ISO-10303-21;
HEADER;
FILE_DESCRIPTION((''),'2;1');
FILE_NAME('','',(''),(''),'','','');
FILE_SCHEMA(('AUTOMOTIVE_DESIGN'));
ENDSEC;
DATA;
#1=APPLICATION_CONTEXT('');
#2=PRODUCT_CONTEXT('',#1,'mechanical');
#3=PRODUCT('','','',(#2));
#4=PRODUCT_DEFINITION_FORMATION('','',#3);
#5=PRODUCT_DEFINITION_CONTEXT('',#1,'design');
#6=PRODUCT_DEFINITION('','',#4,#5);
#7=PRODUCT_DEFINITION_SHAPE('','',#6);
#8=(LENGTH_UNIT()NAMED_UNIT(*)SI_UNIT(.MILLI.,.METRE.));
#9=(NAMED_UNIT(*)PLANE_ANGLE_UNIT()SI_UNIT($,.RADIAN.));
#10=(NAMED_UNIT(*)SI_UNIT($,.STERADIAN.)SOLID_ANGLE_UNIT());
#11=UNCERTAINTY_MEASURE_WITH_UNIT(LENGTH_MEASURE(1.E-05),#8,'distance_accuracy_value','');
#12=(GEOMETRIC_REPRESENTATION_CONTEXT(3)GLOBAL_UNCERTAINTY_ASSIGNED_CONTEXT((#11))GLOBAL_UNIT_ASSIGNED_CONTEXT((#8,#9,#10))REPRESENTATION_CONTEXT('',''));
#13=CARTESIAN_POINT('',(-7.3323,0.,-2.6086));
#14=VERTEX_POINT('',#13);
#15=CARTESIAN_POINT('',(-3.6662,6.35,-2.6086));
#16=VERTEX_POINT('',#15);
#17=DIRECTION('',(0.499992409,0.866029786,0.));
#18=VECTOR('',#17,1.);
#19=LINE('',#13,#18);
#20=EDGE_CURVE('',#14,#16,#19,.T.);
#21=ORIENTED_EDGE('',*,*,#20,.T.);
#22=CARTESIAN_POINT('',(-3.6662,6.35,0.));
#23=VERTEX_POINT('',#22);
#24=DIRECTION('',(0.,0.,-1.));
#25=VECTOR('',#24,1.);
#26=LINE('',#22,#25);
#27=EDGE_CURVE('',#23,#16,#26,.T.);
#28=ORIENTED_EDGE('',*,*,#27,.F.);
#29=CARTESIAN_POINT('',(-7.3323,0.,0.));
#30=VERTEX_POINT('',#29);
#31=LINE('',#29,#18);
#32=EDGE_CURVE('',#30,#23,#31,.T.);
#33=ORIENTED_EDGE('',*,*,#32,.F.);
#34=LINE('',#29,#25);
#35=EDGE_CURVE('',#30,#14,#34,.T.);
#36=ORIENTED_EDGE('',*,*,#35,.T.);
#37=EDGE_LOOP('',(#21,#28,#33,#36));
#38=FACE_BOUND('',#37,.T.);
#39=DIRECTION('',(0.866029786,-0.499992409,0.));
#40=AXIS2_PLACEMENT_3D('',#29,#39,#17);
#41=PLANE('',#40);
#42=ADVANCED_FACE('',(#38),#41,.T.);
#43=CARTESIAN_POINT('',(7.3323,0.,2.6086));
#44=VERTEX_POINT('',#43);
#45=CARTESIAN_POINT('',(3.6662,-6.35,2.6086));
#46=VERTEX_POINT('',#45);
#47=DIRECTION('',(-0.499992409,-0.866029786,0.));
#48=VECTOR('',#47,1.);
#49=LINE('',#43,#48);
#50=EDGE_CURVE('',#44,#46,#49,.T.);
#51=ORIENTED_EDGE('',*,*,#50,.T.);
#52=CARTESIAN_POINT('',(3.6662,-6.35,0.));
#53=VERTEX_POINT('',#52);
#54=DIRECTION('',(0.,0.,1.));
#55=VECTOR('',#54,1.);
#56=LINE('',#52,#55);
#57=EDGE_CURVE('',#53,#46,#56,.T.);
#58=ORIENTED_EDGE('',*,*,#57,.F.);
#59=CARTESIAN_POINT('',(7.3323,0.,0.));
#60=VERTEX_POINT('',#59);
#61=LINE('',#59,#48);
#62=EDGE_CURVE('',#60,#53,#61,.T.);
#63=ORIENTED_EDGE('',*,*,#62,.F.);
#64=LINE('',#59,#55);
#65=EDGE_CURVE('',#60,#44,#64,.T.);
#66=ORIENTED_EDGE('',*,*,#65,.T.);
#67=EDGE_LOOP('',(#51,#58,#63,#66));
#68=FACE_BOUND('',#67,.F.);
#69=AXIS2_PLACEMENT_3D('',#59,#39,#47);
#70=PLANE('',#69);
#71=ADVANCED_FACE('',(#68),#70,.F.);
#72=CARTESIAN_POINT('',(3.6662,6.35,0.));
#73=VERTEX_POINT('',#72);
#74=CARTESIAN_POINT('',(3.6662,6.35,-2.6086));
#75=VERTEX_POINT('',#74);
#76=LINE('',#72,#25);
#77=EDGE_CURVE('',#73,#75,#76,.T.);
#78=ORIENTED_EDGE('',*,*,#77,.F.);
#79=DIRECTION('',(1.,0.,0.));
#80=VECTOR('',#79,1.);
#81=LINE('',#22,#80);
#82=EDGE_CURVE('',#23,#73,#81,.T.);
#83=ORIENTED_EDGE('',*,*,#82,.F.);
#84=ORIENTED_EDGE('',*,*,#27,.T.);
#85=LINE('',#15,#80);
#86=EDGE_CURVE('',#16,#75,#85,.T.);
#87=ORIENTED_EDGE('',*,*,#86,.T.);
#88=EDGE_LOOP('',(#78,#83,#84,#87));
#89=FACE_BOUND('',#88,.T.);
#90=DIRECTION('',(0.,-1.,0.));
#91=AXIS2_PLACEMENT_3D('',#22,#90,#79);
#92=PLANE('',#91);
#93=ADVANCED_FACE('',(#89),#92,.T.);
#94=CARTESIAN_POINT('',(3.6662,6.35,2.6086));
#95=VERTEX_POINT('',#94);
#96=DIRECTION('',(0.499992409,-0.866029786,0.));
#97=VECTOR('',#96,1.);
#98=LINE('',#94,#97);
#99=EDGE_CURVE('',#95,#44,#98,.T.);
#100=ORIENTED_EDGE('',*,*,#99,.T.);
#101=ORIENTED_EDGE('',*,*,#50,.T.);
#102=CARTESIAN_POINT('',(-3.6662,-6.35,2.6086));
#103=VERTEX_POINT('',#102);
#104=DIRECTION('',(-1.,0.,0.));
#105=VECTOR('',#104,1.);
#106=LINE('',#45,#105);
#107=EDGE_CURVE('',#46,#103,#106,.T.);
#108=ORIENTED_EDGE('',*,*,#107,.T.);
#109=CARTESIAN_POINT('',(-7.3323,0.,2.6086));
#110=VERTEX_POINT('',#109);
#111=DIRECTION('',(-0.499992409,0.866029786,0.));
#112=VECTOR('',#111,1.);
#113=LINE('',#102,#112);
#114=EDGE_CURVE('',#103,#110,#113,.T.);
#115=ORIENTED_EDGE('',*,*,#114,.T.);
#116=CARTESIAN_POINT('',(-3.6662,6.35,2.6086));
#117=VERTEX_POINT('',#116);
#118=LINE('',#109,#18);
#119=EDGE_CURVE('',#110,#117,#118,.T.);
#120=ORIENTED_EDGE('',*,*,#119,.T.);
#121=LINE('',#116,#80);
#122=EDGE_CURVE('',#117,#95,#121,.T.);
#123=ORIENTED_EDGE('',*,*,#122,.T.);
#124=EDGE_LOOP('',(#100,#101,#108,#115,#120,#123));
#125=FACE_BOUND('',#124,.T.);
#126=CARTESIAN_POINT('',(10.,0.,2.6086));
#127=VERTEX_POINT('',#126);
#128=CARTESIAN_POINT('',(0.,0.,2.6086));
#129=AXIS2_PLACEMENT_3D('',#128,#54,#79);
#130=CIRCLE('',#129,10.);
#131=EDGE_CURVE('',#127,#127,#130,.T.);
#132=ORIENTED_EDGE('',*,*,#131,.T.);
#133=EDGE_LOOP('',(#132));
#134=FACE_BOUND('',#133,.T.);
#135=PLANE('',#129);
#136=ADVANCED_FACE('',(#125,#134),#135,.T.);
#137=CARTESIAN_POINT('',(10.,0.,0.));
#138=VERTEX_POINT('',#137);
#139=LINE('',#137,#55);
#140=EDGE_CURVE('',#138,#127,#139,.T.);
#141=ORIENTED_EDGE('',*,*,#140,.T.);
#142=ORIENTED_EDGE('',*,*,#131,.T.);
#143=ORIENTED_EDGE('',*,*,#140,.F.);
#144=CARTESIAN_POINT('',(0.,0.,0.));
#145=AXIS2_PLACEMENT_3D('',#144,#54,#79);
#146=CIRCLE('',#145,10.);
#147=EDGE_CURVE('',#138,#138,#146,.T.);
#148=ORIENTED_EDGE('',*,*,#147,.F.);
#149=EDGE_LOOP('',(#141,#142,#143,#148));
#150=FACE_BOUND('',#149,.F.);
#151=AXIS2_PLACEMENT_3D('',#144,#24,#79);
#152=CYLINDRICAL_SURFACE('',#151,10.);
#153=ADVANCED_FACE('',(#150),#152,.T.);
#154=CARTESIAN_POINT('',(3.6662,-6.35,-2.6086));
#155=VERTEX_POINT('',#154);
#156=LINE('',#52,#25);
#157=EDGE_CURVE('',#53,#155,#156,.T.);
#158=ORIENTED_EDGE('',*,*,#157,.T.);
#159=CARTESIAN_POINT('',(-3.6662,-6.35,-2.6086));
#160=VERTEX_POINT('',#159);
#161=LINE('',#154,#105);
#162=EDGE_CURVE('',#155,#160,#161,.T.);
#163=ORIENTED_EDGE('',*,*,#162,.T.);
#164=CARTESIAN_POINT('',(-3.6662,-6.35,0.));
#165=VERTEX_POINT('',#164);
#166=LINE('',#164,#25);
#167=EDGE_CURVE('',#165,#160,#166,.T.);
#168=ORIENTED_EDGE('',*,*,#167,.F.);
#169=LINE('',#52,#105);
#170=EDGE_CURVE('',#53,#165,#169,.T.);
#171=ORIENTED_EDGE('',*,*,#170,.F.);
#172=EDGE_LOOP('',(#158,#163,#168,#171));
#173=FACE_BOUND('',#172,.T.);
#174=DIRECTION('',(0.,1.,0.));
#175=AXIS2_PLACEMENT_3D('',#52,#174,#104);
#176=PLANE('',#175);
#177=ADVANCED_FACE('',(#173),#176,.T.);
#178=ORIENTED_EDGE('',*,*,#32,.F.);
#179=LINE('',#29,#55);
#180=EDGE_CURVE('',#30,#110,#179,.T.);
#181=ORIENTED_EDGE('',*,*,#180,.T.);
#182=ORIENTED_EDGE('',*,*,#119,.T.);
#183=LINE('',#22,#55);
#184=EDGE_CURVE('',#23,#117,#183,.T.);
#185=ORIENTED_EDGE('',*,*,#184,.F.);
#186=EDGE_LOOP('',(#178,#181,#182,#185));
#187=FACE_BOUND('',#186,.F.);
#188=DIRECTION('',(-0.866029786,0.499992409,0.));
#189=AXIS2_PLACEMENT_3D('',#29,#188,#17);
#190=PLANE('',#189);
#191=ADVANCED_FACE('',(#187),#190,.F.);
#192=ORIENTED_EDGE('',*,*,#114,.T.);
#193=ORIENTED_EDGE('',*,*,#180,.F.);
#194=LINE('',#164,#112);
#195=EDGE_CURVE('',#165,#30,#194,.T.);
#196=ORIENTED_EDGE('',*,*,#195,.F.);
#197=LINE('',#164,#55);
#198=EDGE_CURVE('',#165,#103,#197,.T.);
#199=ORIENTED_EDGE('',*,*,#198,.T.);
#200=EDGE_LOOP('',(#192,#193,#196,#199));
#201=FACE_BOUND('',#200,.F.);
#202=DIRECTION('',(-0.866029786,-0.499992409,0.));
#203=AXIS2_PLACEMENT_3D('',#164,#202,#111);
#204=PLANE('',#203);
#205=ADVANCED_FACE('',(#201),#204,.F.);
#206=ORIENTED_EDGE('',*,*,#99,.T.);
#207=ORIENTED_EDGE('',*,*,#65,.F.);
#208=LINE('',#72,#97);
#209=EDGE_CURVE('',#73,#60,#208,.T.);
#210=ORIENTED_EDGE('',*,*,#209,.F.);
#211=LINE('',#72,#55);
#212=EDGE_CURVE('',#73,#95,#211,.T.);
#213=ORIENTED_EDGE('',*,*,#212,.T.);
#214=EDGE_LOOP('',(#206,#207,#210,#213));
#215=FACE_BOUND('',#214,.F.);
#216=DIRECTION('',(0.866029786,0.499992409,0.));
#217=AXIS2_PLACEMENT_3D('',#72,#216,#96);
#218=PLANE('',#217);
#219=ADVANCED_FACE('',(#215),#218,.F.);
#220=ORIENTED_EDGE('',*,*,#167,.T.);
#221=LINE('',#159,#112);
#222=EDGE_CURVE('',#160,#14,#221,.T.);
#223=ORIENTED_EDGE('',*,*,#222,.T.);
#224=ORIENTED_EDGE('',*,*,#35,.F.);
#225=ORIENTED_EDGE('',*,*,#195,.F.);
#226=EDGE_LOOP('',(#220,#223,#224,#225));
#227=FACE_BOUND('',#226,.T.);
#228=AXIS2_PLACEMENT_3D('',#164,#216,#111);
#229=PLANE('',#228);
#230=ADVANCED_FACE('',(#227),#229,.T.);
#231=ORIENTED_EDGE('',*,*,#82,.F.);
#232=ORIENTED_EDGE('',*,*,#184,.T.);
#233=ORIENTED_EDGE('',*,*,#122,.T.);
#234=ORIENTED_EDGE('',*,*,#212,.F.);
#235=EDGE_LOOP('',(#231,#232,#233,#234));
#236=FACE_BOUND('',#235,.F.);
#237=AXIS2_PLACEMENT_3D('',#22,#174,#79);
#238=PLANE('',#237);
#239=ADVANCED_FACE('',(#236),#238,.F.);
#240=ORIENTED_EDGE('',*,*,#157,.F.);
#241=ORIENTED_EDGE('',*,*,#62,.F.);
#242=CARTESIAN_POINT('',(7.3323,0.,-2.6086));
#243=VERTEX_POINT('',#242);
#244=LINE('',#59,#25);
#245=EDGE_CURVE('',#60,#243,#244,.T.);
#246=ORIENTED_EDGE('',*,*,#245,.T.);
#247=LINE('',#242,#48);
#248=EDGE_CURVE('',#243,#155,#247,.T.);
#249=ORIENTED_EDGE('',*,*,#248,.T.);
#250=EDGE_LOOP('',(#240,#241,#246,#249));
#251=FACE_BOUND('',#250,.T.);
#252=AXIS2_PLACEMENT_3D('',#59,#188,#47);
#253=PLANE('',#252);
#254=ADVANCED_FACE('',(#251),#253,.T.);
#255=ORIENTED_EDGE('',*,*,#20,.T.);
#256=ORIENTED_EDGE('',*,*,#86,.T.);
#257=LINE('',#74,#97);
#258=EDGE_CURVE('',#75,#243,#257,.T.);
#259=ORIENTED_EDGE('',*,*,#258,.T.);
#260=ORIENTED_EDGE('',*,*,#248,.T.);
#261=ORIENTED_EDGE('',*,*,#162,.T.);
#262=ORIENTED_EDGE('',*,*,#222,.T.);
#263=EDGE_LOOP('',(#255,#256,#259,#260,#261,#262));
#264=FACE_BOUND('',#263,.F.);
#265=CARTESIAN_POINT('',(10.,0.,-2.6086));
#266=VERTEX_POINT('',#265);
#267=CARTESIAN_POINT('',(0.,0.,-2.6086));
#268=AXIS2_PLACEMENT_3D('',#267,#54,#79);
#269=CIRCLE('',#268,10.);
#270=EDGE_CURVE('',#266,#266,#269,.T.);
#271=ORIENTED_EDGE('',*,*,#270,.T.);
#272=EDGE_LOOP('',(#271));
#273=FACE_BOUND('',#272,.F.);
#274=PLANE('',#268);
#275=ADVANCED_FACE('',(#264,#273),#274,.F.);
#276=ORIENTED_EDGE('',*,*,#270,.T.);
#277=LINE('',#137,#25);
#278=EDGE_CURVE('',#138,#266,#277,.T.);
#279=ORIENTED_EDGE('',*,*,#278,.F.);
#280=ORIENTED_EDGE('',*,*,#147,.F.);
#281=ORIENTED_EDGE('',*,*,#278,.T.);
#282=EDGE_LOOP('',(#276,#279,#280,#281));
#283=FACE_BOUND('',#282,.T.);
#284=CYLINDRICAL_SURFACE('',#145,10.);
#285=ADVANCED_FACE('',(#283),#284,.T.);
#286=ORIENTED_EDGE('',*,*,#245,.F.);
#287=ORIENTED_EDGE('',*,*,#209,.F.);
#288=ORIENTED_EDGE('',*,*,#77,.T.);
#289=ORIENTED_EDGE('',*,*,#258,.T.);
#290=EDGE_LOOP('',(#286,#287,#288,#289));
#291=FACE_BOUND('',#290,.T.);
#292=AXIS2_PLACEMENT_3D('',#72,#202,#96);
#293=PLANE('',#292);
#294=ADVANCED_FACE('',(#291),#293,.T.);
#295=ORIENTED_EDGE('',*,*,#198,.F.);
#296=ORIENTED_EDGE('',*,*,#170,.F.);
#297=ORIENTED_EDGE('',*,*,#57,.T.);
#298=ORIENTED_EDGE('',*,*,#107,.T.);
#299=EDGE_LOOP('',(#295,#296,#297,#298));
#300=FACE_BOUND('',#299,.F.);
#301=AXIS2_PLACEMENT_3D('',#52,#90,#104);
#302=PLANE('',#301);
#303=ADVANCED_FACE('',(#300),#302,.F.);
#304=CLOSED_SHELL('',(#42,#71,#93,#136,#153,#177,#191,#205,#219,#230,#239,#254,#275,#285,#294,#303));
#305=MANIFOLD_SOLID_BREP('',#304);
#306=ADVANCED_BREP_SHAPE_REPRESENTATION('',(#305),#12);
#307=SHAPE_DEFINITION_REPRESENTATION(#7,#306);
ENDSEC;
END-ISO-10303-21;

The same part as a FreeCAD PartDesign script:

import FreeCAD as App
import Part
import Sketcher
from FreeCAD import Vector
Q = App.Units.Quantity


def add_polygon(sketch, points):
    """Adds a closed chain of lines whose ends are joined by coincident constraints."""
    first, n = sketch.GeometryCount, len(points)
    for a, b in zip(points, points[1:] + points[:1]):
        sketch.addGeometry(Part.LineSegment(App.Vector(*a, 0), App.Vector(*b, 0)), False)
    for i in range(n):
        sketch.addConstraint(Sketcher.Constraint("Coincident", first + i, 2, first + (i + 1) % n, 1))

doc = App.newDocument("Part")
body = doc.addObject("PartDesign::Body", "Body")

# Sketch on XY plane
sketch1 = body.newObject("Sketcher::SketchObject", "Sketch")
sketch1.AttachmentSupport = (doc.getObject("XY_Plane"), [""])
sketch1.MapMode = "FlatFace"
sketch1.addGeometry(Part.Circle(Vector(0, 0, 0), Vector(0, 0, 1), 10), False)  # 0
add_polygon(sketch1, [(-7, 0), (-4, 6), (4, 6), (7, 0), (4, -6), (-4, -6)])  # lines 1-6
sketch1.addConstraint(Sketcher.Constraint("Horizontal", 2))
sketch1.addConstraint(Sketcher.Constraint("Horizontal", 5))
sketch1.addConstraint(Sketcher.Constraint("Coincident", 0, 3, -1, 1))
sketch1.addConstraint(Sketcher.Constraint("Symmetric", 1, 2, 4, 2, -1, 1))
sketch1.addConstraint(Sketcher.Constraint("Symmetric", 3, 2, 6, 2, -1, 1))
sketch1.addConstraint(Sketcher.Constraint("PointOnObject", 3, 2, -1))
sketch1.addConstraint(Sketcher.Constraint("Parallel", 3, 6))
sketch1.addConstraint(Sketcher.Constraint("Vertical", 2, 2, 4, 2))
sketch1.addConstraint(Sketcher.Constraint("Diameter", 0, Q("20 mm")))
sketch1.addConstraint(Sketcher.Constraint("DistanceY", 4, 2, 2, 2, Q("12.7 mm")))
sketch1.addConstraint(Sketcher.Constraint("Angle", 1, Q("60.0005 deg")))
sketch1.addConstraint(Sketcher.Constraint("DistanceX", 2, 1, 2, 2, Q("7.3324 mm")))
pad1 = body.newObject("PartDesign::Pad", "Pad")
pad1.Profile = sketch1
pad1.Length = 5.2172
pad1.Midplane = True

doc.recompute()
